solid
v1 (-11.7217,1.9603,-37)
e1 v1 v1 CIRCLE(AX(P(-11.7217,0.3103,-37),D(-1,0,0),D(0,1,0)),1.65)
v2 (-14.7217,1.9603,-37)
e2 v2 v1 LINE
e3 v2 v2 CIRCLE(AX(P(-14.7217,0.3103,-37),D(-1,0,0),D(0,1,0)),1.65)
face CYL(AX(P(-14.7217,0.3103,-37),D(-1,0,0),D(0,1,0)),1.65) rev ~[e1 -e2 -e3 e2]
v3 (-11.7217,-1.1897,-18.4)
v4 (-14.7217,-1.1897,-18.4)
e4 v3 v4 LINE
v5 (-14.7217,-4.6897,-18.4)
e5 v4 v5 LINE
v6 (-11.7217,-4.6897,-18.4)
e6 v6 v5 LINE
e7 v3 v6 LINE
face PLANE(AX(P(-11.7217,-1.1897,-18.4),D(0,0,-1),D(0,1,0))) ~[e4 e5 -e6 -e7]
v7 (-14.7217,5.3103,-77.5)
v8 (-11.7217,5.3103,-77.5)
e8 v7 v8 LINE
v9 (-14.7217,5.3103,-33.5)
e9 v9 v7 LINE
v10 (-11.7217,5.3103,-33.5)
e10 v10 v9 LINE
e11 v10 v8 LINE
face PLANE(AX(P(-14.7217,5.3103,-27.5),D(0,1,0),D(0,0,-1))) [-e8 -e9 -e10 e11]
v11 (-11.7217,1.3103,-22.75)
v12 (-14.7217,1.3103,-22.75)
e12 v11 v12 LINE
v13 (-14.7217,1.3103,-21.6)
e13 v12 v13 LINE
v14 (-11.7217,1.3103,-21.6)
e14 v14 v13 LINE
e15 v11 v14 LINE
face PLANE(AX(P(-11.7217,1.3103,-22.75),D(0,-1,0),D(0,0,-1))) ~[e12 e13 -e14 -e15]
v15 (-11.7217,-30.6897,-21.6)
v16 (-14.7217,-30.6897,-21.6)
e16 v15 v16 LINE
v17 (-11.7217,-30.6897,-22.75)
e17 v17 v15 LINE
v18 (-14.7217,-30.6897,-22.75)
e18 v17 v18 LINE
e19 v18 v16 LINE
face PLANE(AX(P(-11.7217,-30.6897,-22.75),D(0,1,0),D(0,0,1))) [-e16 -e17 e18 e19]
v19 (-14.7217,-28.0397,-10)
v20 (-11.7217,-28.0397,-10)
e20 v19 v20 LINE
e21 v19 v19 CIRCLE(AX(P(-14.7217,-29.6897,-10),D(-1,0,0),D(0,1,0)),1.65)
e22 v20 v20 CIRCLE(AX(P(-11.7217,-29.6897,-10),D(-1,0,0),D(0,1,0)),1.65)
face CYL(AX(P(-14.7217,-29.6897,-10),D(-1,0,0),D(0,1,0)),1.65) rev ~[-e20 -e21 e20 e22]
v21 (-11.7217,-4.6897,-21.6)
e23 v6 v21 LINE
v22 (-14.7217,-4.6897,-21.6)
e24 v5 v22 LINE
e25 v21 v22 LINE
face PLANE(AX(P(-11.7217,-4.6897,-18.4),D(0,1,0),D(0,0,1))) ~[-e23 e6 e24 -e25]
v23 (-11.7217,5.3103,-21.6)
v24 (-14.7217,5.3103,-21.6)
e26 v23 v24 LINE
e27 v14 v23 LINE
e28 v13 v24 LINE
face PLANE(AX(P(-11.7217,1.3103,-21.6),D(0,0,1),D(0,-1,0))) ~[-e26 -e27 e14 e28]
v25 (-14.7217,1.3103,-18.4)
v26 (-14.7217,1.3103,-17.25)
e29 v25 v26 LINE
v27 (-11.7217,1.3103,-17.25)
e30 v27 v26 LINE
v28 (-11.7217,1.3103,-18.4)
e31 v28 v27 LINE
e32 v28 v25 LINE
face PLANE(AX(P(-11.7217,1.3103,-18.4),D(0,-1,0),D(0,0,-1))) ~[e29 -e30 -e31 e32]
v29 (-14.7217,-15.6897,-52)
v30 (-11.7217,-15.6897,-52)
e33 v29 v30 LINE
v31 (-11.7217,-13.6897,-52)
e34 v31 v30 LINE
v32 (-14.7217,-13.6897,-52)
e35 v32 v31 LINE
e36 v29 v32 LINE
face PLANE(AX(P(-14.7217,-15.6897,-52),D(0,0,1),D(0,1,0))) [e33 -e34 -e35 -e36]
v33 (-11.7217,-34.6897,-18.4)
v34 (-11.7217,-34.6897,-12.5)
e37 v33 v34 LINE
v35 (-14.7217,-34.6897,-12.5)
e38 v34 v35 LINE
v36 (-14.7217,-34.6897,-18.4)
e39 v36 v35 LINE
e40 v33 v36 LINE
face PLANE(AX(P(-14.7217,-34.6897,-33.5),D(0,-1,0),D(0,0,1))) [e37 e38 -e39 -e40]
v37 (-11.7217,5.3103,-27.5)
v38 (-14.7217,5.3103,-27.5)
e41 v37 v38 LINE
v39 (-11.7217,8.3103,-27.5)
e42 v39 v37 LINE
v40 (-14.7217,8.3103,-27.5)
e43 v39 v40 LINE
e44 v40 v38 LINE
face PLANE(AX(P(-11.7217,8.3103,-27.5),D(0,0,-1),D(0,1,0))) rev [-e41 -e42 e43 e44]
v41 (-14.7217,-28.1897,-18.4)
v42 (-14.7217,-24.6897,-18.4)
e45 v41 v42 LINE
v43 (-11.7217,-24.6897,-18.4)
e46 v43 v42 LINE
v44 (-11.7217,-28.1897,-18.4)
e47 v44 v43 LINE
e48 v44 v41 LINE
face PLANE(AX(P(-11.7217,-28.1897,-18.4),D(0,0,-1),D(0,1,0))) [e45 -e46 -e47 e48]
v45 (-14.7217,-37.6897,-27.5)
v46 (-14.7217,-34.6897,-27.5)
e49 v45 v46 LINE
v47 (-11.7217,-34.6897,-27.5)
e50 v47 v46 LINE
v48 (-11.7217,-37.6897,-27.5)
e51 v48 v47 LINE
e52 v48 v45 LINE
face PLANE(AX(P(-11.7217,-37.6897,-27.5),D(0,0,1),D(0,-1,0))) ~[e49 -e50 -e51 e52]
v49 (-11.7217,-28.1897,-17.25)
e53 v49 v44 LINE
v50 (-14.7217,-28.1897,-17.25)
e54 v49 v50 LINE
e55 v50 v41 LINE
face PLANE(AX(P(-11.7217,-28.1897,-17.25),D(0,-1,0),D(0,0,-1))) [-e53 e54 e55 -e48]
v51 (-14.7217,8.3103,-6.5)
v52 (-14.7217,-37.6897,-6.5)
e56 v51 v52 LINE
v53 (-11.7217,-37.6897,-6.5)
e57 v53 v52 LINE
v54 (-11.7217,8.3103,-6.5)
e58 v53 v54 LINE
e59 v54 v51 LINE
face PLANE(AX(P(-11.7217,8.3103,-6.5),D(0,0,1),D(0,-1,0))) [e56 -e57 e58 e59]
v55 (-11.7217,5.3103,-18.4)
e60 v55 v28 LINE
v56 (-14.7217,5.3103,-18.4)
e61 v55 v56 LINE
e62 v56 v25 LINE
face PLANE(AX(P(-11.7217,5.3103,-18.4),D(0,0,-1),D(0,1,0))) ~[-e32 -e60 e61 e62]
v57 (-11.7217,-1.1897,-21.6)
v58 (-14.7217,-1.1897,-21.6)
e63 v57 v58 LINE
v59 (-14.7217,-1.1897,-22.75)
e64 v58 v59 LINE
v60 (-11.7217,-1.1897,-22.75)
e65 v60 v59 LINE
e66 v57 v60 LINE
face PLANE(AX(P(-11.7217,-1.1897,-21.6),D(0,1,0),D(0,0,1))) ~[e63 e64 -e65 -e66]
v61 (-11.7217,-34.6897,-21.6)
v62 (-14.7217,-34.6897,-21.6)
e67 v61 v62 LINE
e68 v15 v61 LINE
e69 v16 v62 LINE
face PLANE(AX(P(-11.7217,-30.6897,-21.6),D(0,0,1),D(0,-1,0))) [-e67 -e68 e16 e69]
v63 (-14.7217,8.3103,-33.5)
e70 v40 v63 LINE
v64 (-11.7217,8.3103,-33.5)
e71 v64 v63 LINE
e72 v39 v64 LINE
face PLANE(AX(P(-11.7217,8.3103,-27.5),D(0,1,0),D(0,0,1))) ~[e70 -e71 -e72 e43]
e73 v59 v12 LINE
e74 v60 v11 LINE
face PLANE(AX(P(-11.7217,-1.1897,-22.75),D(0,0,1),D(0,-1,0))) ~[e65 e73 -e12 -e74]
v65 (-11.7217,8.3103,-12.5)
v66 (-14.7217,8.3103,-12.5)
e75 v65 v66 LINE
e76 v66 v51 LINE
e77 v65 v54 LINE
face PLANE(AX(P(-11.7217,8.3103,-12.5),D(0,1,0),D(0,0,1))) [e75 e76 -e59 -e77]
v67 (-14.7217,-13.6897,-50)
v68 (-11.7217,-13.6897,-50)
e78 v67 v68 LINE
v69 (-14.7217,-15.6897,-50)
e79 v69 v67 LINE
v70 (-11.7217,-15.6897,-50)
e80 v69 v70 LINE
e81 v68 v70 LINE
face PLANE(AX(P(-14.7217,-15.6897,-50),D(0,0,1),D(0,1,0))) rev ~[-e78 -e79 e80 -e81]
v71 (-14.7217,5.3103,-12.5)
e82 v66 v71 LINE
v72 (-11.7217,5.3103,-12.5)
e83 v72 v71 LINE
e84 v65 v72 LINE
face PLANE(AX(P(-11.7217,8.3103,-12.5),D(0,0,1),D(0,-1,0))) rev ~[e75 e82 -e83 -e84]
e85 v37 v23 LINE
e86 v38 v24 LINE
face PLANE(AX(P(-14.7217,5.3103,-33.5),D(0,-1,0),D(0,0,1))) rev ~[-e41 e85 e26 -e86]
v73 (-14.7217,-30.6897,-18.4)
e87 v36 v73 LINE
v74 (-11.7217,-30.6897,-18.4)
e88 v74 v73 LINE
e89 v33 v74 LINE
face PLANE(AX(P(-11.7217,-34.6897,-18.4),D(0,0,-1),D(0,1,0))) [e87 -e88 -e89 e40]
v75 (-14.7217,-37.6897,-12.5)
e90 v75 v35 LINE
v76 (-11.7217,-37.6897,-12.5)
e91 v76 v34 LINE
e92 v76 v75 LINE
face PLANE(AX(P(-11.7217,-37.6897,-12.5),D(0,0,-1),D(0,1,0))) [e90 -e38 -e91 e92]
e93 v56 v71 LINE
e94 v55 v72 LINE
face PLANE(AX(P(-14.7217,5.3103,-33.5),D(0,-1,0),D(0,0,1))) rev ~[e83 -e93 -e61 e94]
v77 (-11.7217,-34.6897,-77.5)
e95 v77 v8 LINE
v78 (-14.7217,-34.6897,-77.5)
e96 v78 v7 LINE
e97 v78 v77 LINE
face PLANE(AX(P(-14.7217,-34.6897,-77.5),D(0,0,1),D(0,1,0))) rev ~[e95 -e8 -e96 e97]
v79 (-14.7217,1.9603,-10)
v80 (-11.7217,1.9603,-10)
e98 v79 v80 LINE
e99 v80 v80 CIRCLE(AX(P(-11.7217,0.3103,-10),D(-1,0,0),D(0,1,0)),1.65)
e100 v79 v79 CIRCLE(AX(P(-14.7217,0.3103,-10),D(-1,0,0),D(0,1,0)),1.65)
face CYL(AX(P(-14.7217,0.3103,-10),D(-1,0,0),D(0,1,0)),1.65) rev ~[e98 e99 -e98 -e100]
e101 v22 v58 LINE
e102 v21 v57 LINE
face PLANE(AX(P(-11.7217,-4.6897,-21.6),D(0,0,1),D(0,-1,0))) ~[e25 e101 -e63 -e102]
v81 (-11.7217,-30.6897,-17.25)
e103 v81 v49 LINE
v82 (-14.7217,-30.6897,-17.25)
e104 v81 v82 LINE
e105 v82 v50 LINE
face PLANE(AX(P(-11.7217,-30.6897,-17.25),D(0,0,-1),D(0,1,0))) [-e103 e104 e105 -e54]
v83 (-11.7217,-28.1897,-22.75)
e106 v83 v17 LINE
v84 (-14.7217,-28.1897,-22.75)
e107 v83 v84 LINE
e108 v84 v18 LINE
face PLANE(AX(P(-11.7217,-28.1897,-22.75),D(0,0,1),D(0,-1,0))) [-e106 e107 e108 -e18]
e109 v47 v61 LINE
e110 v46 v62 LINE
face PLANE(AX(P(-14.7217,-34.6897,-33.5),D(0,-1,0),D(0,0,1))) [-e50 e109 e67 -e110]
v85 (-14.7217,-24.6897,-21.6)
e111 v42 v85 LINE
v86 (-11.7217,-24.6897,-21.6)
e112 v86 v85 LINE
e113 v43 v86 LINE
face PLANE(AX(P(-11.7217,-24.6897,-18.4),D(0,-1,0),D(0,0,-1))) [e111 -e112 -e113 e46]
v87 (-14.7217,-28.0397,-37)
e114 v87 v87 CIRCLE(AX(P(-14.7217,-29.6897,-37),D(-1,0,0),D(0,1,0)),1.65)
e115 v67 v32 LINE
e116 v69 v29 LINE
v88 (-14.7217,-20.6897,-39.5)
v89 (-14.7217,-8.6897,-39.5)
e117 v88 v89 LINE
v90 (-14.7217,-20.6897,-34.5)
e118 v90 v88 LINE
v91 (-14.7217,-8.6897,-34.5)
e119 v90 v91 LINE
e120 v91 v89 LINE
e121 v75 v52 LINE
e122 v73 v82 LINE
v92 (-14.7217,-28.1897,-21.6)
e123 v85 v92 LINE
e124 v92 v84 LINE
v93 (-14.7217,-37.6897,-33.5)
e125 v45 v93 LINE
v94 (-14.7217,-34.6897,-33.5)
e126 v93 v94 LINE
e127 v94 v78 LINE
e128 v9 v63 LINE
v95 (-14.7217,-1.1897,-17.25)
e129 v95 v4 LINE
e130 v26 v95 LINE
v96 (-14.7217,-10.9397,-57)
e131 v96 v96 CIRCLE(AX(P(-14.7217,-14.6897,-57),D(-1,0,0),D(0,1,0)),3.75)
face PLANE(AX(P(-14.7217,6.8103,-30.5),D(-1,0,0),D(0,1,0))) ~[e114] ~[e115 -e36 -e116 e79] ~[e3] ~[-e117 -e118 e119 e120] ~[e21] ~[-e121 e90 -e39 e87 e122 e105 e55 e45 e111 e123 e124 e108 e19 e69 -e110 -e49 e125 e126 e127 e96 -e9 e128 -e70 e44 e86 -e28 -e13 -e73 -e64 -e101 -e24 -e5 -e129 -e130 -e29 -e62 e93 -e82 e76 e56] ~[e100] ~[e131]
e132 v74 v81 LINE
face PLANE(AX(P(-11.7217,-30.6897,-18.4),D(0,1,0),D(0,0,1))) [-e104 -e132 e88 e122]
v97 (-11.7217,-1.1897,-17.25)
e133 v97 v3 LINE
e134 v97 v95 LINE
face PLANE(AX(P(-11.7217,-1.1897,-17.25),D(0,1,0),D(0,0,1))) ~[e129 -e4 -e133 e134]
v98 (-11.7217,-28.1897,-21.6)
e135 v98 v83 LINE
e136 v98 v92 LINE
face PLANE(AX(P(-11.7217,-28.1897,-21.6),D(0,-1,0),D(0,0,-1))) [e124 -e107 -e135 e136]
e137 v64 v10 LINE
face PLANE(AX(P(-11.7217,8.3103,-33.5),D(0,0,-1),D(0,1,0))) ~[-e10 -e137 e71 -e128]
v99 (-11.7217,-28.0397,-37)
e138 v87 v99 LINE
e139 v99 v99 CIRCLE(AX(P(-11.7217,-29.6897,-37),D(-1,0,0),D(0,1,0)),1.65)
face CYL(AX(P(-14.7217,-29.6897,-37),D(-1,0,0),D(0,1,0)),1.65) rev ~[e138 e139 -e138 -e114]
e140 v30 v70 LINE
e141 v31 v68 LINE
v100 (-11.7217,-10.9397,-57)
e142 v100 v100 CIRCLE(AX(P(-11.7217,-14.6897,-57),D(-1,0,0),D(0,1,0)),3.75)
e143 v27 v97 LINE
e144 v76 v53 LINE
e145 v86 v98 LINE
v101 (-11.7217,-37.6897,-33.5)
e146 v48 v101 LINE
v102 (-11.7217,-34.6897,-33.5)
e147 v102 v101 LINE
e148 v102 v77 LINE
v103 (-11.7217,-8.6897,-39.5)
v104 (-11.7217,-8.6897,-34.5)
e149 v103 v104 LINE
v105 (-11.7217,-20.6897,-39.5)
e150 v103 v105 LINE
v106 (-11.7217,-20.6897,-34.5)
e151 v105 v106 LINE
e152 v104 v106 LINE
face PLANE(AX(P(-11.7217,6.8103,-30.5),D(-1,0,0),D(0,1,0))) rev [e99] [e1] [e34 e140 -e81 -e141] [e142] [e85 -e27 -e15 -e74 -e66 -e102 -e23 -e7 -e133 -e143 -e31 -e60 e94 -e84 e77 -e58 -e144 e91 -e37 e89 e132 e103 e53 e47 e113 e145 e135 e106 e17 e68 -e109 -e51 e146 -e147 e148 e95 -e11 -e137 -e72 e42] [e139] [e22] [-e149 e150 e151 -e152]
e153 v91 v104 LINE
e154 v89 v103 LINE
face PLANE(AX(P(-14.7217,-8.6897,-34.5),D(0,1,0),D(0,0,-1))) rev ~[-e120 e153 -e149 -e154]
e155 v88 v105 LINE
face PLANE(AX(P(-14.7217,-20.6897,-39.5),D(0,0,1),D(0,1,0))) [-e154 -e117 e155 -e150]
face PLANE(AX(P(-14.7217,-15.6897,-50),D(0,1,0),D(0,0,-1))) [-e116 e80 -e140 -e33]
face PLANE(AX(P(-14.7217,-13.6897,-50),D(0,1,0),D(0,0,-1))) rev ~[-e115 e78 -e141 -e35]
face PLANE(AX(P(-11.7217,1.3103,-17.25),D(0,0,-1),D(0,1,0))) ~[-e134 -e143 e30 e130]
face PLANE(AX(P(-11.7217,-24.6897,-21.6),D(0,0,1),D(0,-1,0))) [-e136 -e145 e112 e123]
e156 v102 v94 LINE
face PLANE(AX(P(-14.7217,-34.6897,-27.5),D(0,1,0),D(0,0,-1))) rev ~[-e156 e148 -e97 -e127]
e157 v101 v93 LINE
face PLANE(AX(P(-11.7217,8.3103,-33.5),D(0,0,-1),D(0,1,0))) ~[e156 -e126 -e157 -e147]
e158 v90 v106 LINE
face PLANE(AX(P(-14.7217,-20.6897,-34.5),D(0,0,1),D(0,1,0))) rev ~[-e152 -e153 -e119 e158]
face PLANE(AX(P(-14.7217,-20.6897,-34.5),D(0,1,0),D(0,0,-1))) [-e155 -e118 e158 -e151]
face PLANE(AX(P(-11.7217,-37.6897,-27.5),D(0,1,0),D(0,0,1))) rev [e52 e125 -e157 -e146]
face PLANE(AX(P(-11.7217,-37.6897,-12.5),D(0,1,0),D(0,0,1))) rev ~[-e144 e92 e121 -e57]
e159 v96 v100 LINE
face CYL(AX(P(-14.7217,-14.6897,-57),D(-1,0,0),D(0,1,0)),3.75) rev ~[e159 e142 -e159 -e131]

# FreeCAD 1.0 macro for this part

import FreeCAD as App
import Part
import Sketcher
from FreeCAD import Vector


def add_polygon(sketch, points):
    """Adds a closed chain of lines whose ends are joined by coincident constraints."""
    first, n = sketch.GeometryCount, len(points)
    for a, b in zip(points, points[1:] + points[:1]):
        sketch.addGeometry(Part.LineSegment(App.Vector(*a, 0), App.Vector(*b, 0)), False)
    for i in range(n):
        sketch.addConstraint(Sketcher.Constraint("Coincident", first + i, 2, first + (i + 1) % n, 1))

doc = App.newDocument("Part")
body = doc.addObject("PartDesign::Body", "Body")

# Sketch on YZ plane
sketch1 = doc.addObject("Sketcher::SketchObject", "Sketch")
body.addObject(sketch1)
sketch1.AttachmentSupport = (doc.YZ_Plane, [""])
sketch1.MapMode = "FlatFace"
add_polygon(sketch1, [(-20, 13.5), (-20, -13.5), (20, -13.5), (20, 13.5)])  # lines 0-3
sketch1.addGeometry(Part.Circle(Vector(0, 8.5, 0), Vector(0, 0, 1), 1.9), False)  # 4
sketch1.addConstraint([
    Sketcher.Constraint("Vertical", 0),
    Sketcher.Constraint("Horizontal", 1),
    Sketcher.Constraint("Vertical", 2),
    Sketcher.Constraint("Horizontal", 3),
    Sketcher.Constraint("Symmetric", 0, 2, 2, 2, -1, 1),
    Sketcher.Constraint("PointOnObject", 4, 3, -2),
    Sketcher.Constraint("Diameter", 4, 3.8),
    Sketcher.Constraint("DistanceX", 1, 1, 1, 2, 40.0),
    Sketcher.Constraint("DistanceY", 0, 2, 0, 1, 27.0),
    Sketcher.Constraint("DistanceY", 0, 2, 4, 3, 22.0),
])
pad1 = doc.addObject("PartDesign::Pad", "Pad")
body.addObject(pad1)
pad1.Profile = sketch1
pad1.Length = 3

# Sketch on YZ plane
sketch2 = doc.addObject("Sketcher::SketchObject", "Sketch001")
body.addObject(sketch2)
sketch2.AttachmentSupport = (doc.YZ_Plane, [""])
sketch2.MapMode = "FlatFace"
sketch2.AttachmentOffset = App.Placement(Vector(0, 0, 3), App.Rotation())
add_polygon(sketch2, [(-23, 13.5), (-23, 7.5), (-20, 7.5), (-20, 13.5)])  # lines 0-3
sketch2.addConstraint([
    Sketcher.Constraint("Vertical", 0),
    Sketcher.Constraint("Horizontal", 1),
    Sketcher.Constraint("Vertical", 2),
    Sketcher.Constraint("Horizontal", 3),
    Sketcher.Constraint("DistanceX", 1, 1, 1, 2, 3.0),
    Sketcher.Constraint("DistanceY", 0, 2, 0, 1, 6.0),
    Sketcher.Constraint("DistanceX", 0, 2, -1, 1, 23.0),
    Sketcher.Constraint("DistanceY", -1, 1, 0, 2, 7.5),
])
pad2 = doc.addObject("PartDesign::Pad", "Pad001")
body.addObject(pad2)
pad2.Profile = sketch2
pad2.Length = 3
pad2.Reversed = True

# Sketch on YZ plane
sketch3 = doc.addObject("Sketcher::SketchObject", "Sketch002")
body.addObject(sketch3)
sketch3.AttachmentSupport = (doc.YZ_Plane, [""])
sketch3.MapMode = "FlatFace"
sketch3.AttachmentOffset = App.Placement(Vector(0, 0, 3), App.Rotation())
add_polygon(sketch3, [(23, 13.5), (23, 7.5), (20, 7.5), (20, 13.5)])  # lines 0-3
sketch3.addConstraint([
    Sketcher.Constraint("Vertical", 0),
    Sketcher.Constraint("Horizontal", 1),
    Sketcher.Constraint("Vertical", 2),
    Sketcher.Constraint("Horizontal", 3),
    Sketcher.Constraint("DistanceX", 1, 2, 1, 1, 3.0),
    Sketcher.Constraint("DistanceY", 0, 2, 0, 1, 6.0),
    Sketcher.Constraint("DistanceX", -1, 1, 0, 2, 23.0),
    Sketcher.Constraint("DistanceY", -1, 1, 0, 2, 7.5),
])
pad3 = doc.addObject("PartDesign::Pad", "Pad002")
body.addObject(pad3)
pad3.Profile = sketch3
pad3.Length = 3
pad3.Reversed = True
doc.recompute()

mirrored = doc.addObject("PartDesign::Mirrored", "Mirrored")
body.addObject(mirrored)
mirrored.Originals = [pad2, pad3]
mirrored.MirrorPlane = (doc.XY_Plane, [""])
body.Tip = mirrored

# Sketch on YZ plane
sketch4 = doc.addObject("Sketcher::SketchObject", "Sketch003")
body.addObject(sketch4)
sketch4.AttachmentSupport = (doc.YZ_Plane, [""])
sketch4.MapMode = "FlatFace"
sketch4.AttachmentOffset = App.Placement(Vector(0, 0, 3), App.Rotation())
add_polygon(sketch4, [(-16, 1.6), (-20, 1.6), (-20, -1.6), (-16, -1.6), (-16, -2.75), (-13.5, -2.75), (-13.5, -1.6), (-10, -1.6), (-10, 1.6), (-13.5, 1.6), (-13.5, 2.75), (-16, 2.75)])  # lines 0-11
sketch4.addConstraint([
    Sketcher.Constraint("Horizontal", 0),
    Sketcher.Constraint("Vertical", 1),
    Sketcher.Constraint("Horizontal", 2),
    Sketcher.Constraint("Vertical", 3),
    Sketcher.Constraint("Horizontal", 4),
    Sketcher.Constraint("Vertical", 5),
    Sketcher.Constraint("Horizontal", 6),
    Sketcher.Constraint("Vertical", 7),
    Sketcher.Constraint("Horizontal", 8),
    Sketcher.Constraint("Vertical", 9),
    Sketcher.Constraint("Horizontal", 10),
    Sketcher.Constraint("Vertical", 11),
    Sketcher.Constraint("Symmetric", 5, 2, 8, 2, -1),
    Sketcher.Constraint("Symmetric", 3, 2, 10, 2, -1),
    Sketcher.Constraint("Horizontal", 2, 2, 5, 2),
    Sketcher.Constraint("Horizontal", 0, 2, 7, 2),
    Sketcher.Constraint("DistanceX", 0, 2, 0, 1, 4.0),
    Sketcher.Constraint("DistanceX", 4, 1, 4, 2, 2.5),
    Sketcher.Constraint("DistanceX", 6, 1, 6, 2, 3.5),
    Sketcher.Constraint("DistanceY", 1, 2, 1, 1, 3.2),
    Sketcher.Constraint("DistanceX", 0, 2, -1, 1, 20.0),
    Sketcher.Constraint("DistanceY", 3, 2, 3, 1, 1.15),
])
pocket1 = doc.addObject("PartDesign::Pocket", "Pocket")
body.addObject(pocket1)
pocket1.Profile = sketch4
pocket1.Type = "ThroughAll"
doc.recompute()

mirrored2 = doc.addObject("PartDesign::Mirrored", "Mirrored001")
body.addObject(mirrored2)
mirrored2.Originals = [pocket1]
mirrored2.MirrorPlane = (doc.XZ_Plane, [""])
body.Tip = mirrored2

# Sketch on YZ plane
sketch5 = doc.addObject("Sketcher::SketchObject", "Sketch004")
body.addObject(sketch5)
sketch5.AttachmentSupport = (doc.YZ_Plane, [""])
sketch5.MapMode = "FlatFace"
sketch5.addGeometry(Part.Circle(Vector(0, 8.5, 0), Vector(0, 0, 1), 4.5), False)  # 0
add_polygon(sketch5, [(-20, -57.5), (-20, -7.5), (20, -7.5), (20, -57.5)])  # lines 1-4
sketch5.addConstraint([
    Sketcher.Constraint("Vertical", 1),
    Sketcher.Constraint("Horizontal", 2),
    Sketcher.Constraint("Vertical", 3),
    Sketcher.Constraint("Horizontal", 4),
    Sketcher.Constraint("PointOnObject", 0, 3, -2),
    Sketcher.Constraint("Diameter", 0, 9.0),
    Sketcher.Constraint("DistanceX", 2, 1, 2, 2, 40.0),
    Sketcher.Constraint("DistanceY", 1, 1, 1, 2, 50.0),
    Sketcher.Constraint("DistanceX", 1, 2, -1, 1, 20.0),
    Sketcher.Constraint("DistanceY", 1, 2, 0, 3, 16.0),
    Sketcher.Constraint("DistanceY", -1, 1, 0, 3, 8.5),
])
pad4 = doc.addObject("PartDesign::Pad", "Pad003")
body.addObject(pad4)
pad4.Profile = sketch5
pad4.Length = 3

# Sketch on YZ plane
sketch6 = doc.addObject("Sketcher::SketchObject", "Sketch005")
body.addObject(sketch6)
sketch6.AttachmentSupport = (doc.YZ_Plane, [""])
sketch6.MapMode = "FlatFace"
sketch6.addGeometry(Part.Circle(Vector(-15, -17, 0), Vector(0, 0, 1), 1.65), False)  # 0
sketch6.addGeometry(Part.Circle(Vector(15, -17, 0), Vector(0, 0, 1), 1.65), False)  # 1
sketch6.addGeometry(Part.Circle(Vector(15, 10, 0), Vector(0, 0, 1), 1.65), False)  # 2
sketch6.addGeometry(Part.Circle(Vector(-15, 10, 0), Vector(0, 0, 1), 1.65), False)  # 3
add_polygon(sketch6, [(-6, -19.5), (-6, -14.5), (6, -14.5), (6, -19.5)])  # lines 4-7
sketch6.addConstraint([
    Sketcher.Constraint("Vertical", 4),
    Sketcher.Constraint("Horizontal", 5),
    Sketcher.Constraint("Vertical", 6),
    Sketcher.Constraint("Horizontal", 7),
    Sketcher.Constraint("Equal", 0, 1),
    Sketcher.Constraint("Equal", 1, 2),
    Sketcher.Constraint("Equal", 2, 3),
    Sketcher.Constraint("Symmetric", 0, 3, 1, 3, -2),
    Sketcher.Constraint("Symmetric", 2, 3, 3, 3, -2),
    Sketcher.Constraint("Vertical", 1, 3, 2, 3),
    Sketcher.Constraint("Diameter", 0, 3.3),
    Sketcher.Constraint("DistanceX", 5, 1, 5, 2, 12.0),
    Sketcher.Constraint("DistanceY", 4, 1, 4, 2, 5.0),
    Sketcher.Constraint("DistanceX", 0, 3, -1, 1, 15.0),
    Sketcher.Constraint("DistanceY", 0, 3, -1, 1, 17.0),
    Sketcher.Constraint("DistanceY", -1, 1, 2, 3, 10.0),
    Sketcher.Constraint("DistanceX", 4, 2, -1, 1, 6.0),
    Sketcher.Constraint("DistanceY", 4, 2, -1, 1, 14.5),
])
pocket2 = doc.addObject("PartDesign::Pocket", "Pocket001")
body.addObject(pocket2)
pocket2.Profile = sketch6
pocket2.Type = "ThroughAll"
pocket2.Reversed = True

# Sketch on YZ plane
sketch7 = doc.addObject("Sketcher::SketchObject", "Sketch006")
body.addObject(sketch7)
sketch7.AttachmentSupport = (doc.YZ_Plane, [""])
sketch7.MapMode = "FlatFace"
sketch7.addGeometry(Part.Circle(Vector(0, -37, 0), Vector(0, 0, 1), 3.75), False)  # 0
add_polygon(sketch7, [(-1, -32), (-1, -30), (1, -30), (1, -32)])  # lines 1-4
sketch7.addConstraint([
    Sketcher.Constraint("Vertical", 1),
    Sketcher.Constraint("Horizontal", 2),
    Sketcher.Constraint("Vertical", 3),
    Sketcher.Constraint("Horizontal", 4),
    Sketcher.Constraint("PointOnObject", 0, 3, -2),
    Sketcher.Constraint("Equal", 4, 1),
    Sketcher.Constraint("Diameter", 0, 7.5),
    Sketcher.Constraint("DistanceX", 2, 1, 2, 2, 2.0),
    Sketcher.Constraint("DistanceY", 0, 3, -1, 1, 37.0),
    Sketcher.Constraint("DistanceX", 1, 2, -1, 1, 1.0),
    Sketcher.Constraint("DistanceY", 1, 2, -1, 1, 30.0),
])
pocket3 = doc.addObject("PartDesign::Pocket", "Pocket002")
body.addObject(pocket3)
pocket3.Profile = sketch7
pocket3.Type = "ThroughAll"
pocket3.Reversed = True
body2 = doc.addObject("PartDesign::Body", "Body001")
doc.recompute()

body.Placement = App.Placement(Vector(-14.7217, -14.6897, -20), App.Rotation(Vector(0, 0, 1), 0))
boolean = doc.addObject("PartDesign::Boolean", "Boolean")
body2.addObject(boolean)
boolean.Type = "Fuse"
boolean.addObjects([body])

doc.recompute()
